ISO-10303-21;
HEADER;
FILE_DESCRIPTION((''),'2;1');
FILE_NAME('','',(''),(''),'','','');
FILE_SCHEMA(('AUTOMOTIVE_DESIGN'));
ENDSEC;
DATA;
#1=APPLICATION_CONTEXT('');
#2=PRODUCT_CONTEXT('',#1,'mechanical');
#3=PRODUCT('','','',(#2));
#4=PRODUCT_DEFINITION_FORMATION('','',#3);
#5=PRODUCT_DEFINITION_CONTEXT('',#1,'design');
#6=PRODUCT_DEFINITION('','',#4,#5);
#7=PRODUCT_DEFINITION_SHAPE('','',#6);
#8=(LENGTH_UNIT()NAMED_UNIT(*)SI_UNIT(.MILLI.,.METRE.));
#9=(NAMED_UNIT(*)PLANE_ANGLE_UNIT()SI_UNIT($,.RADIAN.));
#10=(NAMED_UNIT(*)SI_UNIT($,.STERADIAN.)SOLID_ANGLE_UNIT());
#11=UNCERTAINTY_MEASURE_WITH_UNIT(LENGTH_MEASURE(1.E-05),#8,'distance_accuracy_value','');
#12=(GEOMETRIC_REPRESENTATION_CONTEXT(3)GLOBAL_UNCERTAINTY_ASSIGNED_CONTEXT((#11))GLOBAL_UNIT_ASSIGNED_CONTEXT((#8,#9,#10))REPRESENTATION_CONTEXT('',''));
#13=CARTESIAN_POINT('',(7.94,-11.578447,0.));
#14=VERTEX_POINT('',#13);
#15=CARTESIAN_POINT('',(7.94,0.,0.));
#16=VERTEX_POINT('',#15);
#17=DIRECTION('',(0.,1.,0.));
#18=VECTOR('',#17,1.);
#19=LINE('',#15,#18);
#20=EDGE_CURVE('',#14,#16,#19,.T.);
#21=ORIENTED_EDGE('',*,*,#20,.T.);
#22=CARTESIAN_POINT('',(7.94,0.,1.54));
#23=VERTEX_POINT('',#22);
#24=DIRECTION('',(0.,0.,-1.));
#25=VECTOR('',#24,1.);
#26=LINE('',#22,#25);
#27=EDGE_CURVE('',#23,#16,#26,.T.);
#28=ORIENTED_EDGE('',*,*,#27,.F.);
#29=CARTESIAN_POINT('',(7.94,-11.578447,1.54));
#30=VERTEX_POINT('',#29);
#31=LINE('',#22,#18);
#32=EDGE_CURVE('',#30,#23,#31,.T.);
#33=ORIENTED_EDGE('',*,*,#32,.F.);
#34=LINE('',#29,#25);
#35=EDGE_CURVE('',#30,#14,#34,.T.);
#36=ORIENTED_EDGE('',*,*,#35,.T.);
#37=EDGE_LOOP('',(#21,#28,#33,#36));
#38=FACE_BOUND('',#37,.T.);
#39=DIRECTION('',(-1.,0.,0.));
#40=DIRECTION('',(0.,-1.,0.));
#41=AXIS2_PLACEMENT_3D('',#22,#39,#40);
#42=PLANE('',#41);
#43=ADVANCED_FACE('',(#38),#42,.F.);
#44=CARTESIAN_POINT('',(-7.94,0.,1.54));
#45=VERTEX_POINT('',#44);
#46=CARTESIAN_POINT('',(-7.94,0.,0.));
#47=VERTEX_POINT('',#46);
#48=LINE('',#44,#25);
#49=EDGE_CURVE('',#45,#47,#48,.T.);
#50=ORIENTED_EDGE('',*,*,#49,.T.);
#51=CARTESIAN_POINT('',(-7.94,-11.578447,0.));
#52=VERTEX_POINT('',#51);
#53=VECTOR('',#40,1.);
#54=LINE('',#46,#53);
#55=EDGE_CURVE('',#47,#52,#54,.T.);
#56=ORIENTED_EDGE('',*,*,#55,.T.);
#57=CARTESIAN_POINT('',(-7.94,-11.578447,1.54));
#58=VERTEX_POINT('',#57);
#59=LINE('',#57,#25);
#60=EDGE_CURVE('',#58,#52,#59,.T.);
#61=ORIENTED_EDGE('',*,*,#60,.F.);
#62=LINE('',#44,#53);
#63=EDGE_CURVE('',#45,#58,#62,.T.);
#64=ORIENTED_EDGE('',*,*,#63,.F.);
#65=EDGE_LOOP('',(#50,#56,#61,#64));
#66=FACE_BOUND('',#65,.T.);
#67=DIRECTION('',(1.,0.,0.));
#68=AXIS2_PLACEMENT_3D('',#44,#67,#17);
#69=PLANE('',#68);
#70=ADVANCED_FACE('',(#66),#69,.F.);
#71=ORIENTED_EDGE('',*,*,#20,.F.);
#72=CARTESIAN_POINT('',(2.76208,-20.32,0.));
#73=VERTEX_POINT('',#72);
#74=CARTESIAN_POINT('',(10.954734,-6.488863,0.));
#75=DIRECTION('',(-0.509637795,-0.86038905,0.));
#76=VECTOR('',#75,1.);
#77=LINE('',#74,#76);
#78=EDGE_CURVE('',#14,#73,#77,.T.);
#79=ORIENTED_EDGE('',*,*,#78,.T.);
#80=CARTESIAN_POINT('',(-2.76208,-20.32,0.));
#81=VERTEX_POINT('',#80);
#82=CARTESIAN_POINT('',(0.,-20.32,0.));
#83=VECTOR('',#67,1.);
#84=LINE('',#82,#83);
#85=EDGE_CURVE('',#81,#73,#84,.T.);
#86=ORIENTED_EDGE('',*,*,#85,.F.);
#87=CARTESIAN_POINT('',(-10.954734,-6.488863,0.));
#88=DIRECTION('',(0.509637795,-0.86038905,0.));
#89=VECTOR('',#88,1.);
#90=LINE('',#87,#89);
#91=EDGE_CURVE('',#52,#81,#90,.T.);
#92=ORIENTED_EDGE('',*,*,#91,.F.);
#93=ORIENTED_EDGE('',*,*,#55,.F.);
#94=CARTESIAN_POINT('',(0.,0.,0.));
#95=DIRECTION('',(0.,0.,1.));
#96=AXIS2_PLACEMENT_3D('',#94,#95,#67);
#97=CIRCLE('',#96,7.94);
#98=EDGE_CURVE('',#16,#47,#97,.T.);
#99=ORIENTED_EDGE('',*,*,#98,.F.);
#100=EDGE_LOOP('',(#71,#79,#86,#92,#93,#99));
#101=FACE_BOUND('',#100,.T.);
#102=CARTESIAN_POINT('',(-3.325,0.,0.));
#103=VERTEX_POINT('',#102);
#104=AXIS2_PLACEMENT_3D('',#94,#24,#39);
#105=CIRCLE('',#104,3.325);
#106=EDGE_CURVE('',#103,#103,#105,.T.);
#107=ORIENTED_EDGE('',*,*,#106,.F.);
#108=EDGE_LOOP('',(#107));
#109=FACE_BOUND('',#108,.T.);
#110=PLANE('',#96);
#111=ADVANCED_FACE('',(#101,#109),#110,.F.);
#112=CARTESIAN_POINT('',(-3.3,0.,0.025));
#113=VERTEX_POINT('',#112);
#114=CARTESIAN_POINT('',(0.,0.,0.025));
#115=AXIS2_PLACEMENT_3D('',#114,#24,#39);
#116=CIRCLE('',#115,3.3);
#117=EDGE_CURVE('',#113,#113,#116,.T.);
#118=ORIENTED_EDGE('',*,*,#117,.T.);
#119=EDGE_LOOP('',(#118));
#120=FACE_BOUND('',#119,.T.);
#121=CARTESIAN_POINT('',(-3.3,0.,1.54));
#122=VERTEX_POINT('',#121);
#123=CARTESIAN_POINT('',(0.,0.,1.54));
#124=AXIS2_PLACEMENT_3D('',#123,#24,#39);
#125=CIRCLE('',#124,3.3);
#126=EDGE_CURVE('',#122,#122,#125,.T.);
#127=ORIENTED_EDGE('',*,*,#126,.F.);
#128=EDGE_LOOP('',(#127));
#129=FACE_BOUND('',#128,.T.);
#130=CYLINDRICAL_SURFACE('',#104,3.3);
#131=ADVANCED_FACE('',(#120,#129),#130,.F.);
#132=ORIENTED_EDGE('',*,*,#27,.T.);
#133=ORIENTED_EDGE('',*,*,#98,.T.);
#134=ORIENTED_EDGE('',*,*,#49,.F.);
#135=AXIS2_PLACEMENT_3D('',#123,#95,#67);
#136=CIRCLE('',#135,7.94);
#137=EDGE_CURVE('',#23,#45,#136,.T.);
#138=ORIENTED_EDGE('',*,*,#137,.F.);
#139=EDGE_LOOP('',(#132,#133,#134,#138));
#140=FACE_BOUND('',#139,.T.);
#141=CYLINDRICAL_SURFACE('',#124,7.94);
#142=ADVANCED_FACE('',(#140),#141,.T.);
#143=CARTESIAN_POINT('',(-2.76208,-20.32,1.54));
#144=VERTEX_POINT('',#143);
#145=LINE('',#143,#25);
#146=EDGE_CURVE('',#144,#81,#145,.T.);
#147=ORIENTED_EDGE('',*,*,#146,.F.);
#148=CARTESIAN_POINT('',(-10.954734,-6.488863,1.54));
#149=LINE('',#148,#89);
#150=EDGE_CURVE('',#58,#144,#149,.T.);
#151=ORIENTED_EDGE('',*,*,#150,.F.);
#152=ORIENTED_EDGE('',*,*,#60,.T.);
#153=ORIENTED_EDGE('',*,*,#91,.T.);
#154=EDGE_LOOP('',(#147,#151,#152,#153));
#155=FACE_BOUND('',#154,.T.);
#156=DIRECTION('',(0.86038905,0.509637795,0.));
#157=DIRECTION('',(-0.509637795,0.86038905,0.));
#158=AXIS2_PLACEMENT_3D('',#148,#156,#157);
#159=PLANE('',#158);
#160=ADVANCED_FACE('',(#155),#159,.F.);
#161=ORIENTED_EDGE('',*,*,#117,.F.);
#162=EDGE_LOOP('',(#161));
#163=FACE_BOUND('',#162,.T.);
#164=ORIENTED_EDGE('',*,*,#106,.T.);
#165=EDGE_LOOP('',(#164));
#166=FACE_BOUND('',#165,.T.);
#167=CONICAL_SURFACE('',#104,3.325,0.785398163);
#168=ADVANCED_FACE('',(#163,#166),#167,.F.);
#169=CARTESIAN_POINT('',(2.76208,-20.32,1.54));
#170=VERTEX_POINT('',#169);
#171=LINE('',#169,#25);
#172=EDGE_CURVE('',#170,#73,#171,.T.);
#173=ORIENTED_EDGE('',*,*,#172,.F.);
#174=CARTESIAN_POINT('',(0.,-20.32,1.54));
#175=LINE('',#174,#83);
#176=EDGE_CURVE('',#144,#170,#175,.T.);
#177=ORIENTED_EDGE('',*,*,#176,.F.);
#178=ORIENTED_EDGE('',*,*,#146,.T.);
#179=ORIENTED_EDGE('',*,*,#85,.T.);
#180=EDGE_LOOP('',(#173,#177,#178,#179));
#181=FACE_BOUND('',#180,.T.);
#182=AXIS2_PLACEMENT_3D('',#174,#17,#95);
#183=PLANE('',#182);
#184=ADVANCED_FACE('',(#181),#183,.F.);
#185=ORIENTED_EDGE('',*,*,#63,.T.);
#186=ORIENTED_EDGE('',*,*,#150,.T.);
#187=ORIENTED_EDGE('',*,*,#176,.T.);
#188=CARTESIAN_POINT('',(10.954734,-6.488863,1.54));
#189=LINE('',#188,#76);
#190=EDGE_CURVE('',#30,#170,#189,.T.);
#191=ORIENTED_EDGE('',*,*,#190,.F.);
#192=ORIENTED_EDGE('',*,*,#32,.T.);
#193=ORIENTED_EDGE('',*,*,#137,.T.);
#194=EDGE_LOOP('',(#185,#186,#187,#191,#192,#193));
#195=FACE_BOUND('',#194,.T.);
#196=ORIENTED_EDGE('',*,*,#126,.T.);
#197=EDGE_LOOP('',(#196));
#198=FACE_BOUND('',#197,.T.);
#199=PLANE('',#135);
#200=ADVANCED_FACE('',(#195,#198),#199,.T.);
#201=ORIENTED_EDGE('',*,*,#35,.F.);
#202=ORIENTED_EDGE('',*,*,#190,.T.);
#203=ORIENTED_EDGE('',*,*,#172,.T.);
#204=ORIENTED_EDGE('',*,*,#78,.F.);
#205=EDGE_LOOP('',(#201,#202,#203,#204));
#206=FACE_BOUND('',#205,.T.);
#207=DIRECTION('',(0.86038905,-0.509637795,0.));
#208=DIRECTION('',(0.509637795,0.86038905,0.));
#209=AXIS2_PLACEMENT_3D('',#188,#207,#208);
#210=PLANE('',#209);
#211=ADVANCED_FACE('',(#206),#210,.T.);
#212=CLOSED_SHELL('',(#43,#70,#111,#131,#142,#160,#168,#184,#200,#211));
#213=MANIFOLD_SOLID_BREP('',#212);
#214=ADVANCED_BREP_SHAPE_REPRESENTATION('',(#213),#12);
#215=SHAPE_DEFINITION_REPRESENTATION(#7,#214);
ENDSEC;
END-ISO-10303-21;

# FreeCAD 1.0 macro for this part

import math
import FreeCAD as App
import Part
import Sketcher
from FreeCAD import Vector
Q = App.Units.Quantity

doc = App.newDocument("Part")
params = doc.addObject("Spreadsheet::Sheet", "Params")
for row, (alias, value) in enumerate([
    ("sketch1_radius", "7.94 mm"),
    ("sketch1_length", "10.16 mm"),
    ("pad1_length", "1.54 mm"),
    ("sketch2_width", "3.3 mm"),
    ("sketch2_height", "1.54 mm"),
    ("groove_angle", "360 deg"),
], start=1):
    params.set(f"A{row}", alias)
    params.set(f"B{row}", "=" + value)
    params.setAlias(f"B{row}", alias)

body = doc.addObject("PartDesign::Body", "Body")

sketch1 = body.newObject("Sketcher::SketchObject", "Sketch")
sketch1.AttachmentSupport = (doc.getObject("XY_Plane"), [""])
sketch1.MapMode = "FlatFace"
sketch1.addGeometry(Part.LineSegment(Vector(8, -12, 0), Vector(8, 0, 0)), False)
sketch1.addGeometry(Part.ArcOfCircle(Part.Circle(Vector(0, 0, 0), Vector(0, 0, 1), 8), math.radians(0), math.radians(180)), False)
sketch1.addGeometry(Part.LineSegment(Vector(-8, 0, 0), Vector(-8, -12, 0)), False)
sketch1.addGeometry(Part.LineSegment(Vector(-8, -12, 0), Vector(-3, -20, 0)), False)
sketch1.addGeometry(Part.LineSegment(Vector(-3, -20, 0), Vector(3, -20, 0)), False)
sketch1.addGeometry(Part.LineSegment(Vector(3, -20, 0), Vector(8, -12, 0)), False)
sketch1.addConstraint(Sketcher.Constraint("Tangent", 0, 2, 1, 1))
sketch1.addConstraint(Sketcher.Constraint("Tangent", 1, 2, 2, 1))
sketch1.addConstraint(Sketcher.Constraint("Coincident", 2, 2, 3, 1))
sketch1.addConstraint(Sketcher.Constraint("Coincident", 3, 2, 4, 1))
sketch1.addConstraint(Sketcher.Constraint("Coincident", 4, 2, 5, 1))
sketch1.addConstraint(Sketcher.Constraint("Coincident", 5, 2, 0, 1))
sketch1.addConstraint(Sketcher.Constraint("Vertical", 0))
sketch1.addConstraint(Sketcher.Constraint("Vertical", 2))
sketch1.addConstraint(Sketcher.Constraint("Horizontal", 4))
sketch1.addConstraint(Sketcher.Constraint("Coincident", 1, 3, -1, 1))
sketch1.addConstraint(Sketcher.Constraint("Horizontal", 2, 2, 5, 2))
sketch1.addConstraint(Sketcher.Constraint("Equal", 3, 5))
sketch1.addConstraint(Sketcher.Constraint("Radius", 1, 7.94))
sketch1.addConstraint(Sketcher.Constraint("Distance", 3, 10.16))
sketch1.addConstraint(Sketcher.Constraint("DistanceY", 3, 2, -1, 1, 20.32))
sketch1.addConstraint(Sketcher.Constraint("DistanceX", 4, 1, 4, 2, 5.52416))
sketch1.setExpression("Constraints[12]", "Params.sketch1_radius")
sketch1.setExpression("Constraints[13]", "Params.sketch1_length")
pad1 = body.newObject("PartDesign::Pad", "Pad")
pad1.Profile = sketch1
pad1.setExpression("Length", "Params.pad1_length")

sketch2 = body.newObject("Sketcher::SketchObject", "Sketch001")
sketch2.AttachmentSupport = (doc.getObject("YZ_Plane"), [""])
sketch2.MapMode = "FlatFace"
sketch2.addGeometry(Part.LineSegment(Vector(0, 1.54, 0), Vector(0, 0, 0)), False)
sketch2.addGeometry(Part.LineSegment(Vector(0, 0, 0), Vector(3.325, 0, 0)), False)
sketch2.addGeometry(Part.LineSegment(Vector(3.325, 0, 0), Vector(3.3, 0.025, 0)), False)
sketch2.addGeometry(Part.LineSegment(Vector(3.3, 0.025, 0), Vector(3.3, 1.54, 0)), False)
sketch2.addGeometry(Part.LineSegment(Vector(3.3, 1.54, 0), Vector(0, 1.54, 0)), False)
sketch2.addConstraint(Sketcher.Constraint("Coincident", 0, 2, 1, 1))
sketch2.addConstraint(Sketcher.Constraint("Coincident", 1, 2, 2, 1))
sketch2.addConstraint(Sketcher.Constraint("Coincident", 2, 2, 3, 1))
sketch2.addConstraint(Sketcher.Constraint("Coincident", 3, 2, 4, 1))
sketch2.addConstraint(Sketcher.Constraint("Coincident", 4, 2, 0, 1))
sketch2.addConstraint(Sketcher.Constraint("Vertical", 0))
sketch2.addConstraint(Sketcher.Constraint("Horizontal", 1))
sketch2.addConstraint(Sketcher.Constraint("Vertical", 3))
sketch2.addConstraint(Sketcher.Constraint("Horizontal", 4))
sketch2.addConstraint(Sketcher.Constraint("Coincident", 0, 2, -1, 1))
sketch2.addConstraint(Sketcher.Constraint("Angle", 2, Q("135 deg")))
sketch2.addConstraint(Sketcher.Constraint("DistanceX", 4, 2, 4, 1, 3.3))
sketch2.addConstraint(Sketcher.Constraint("DistanceY", 0, 2, 0, 1, 1.54))
sketch2.addConstraint(Sketcher.Constraint("DistanceX", 1, 1, 1, 2, 3.325))
sketch2.setExpression("Constraints[11]", "Params.sketch2_width")
sketch2.setExpression("Constraints[12]", "Params.sketch2_height")
groove = body.newObject("PartDesign::Groove", "Groove")
groove.Profile = sketch2
groove.ReferenceAxis = (sketch2, ["V_Axis"])
groove.setExpression("Angle", "Params.groove_angle")

doc.recompute()
